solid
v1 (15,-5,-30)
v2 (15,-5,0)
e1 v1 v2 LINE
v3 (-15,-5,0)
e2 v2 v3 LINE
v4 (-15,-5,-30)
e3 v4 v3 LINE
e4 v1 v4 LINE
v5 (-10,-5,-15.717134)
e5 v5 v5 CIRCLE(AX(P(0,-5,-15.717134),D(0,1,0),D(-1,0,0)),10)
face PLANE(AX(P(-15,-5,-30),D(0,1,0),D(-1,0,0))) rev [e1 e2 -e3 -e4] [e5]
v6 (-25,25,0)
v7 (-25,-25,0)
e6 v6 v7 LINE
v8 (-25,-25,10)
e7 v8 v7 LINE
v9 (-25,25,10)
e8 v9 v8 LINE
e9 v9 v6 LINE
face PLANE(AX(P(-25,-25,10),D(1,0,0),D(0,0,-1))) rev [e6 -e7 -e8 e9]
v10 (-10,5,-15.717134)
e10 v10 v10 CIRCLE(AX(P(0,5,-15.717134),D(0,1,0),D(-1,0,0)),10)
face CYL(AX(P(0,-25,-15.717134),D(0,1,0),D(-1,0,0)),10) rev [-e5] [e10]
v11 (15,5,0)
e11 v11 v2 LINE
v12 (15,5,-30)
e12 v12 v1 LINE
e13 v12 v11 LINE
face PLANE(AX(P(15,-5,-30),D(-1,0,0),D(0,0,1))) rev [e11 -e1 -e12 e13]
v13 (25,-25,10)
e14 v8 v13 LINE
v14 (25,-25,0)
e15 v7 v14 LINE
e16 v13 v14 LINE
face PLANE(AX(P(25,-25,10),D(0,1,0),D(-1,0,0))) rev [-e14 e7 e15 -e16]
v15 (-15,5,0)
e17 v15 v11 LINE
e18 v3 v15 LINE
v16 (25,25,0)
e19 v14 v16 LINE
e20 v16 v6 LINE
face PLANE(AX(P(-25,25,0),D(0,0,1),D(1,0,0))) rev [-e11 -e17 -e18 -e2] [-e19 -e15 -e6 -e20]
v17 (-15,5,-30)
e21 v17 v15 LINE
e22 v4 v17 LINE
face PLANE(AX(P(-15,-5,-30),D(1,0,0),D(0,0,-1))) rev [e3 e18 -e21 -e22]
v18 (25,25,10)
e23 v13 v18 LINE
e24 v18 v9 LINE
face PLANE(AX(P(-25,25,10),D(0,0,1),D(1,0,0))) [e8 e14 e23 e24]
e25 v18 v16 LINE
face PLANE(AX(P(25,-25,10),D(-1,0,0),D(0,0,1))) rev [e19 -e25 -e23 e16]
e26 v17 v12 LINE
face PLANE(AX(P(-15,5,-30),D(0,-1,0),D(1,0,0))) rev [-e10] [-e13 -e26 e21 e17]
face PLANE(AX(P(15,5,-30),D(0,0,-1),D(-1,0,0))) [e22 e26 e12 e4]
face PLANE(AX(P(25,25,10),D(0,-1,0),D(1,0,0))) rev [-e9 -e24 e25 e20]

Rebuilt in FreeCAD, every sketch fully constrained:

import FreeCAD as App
import Part
import Sketcher
Q = App.Units.Quantity

doc = App.newDocument("Part")
body = doc.addObject("PartDesign::Body", "Body")

# Sketch on XY plane
sketch1 = body.newObject("Sketcher::SketchObject", "Sketch")
sketch1.AttachmentSupport = (doc.getObject("XY_Plane"), [""])
sketch1.MapMode = "FlatFace"
sketch1.addGeometry(Part.LineSegment(App.Vector(-25, 25, 0), App.Vector(-25, -25, 0)), False)
sketch1.addGeometry(Part.LineSegment(App.Vector(-25, -25, 0), App.Vector(25, -25, 0)), False)
sketch1.addGeometry(Part.LineSegment(App.Vector(25, -25, 0), App.Vector(25, 25, 0)), False)
sketch1.addGeometry(Part.LineSegment(App.Vector(25, 25, 0), App.Vector(-25, 25, 0)), False)
sketch1.addConstraint(Sketcher.Constraint("Coincident", 0, 2, 1, 1))
sketch1.addConstraint(Sketcher.Constraint("Coincident", 1, 2, 2, 1))
sketch1.addConstraint(Sketcher.Constraint("Coincident", 2, 2, 3, 1))
sketch1.addConstraint(Sketcher.Constraint("Coincident", 3, 2, 0, 1))
sketch1.addConstraint(Sketcher.Constraint("Vertical", 0))
sketch1.addConstraint(Sketcher.Constraint("Horizontal", 1))
sketch1.addConstraint(Sketcher.Constraint("Vertical", 2))
sketch1.addConstraint(Sketcher.Constraint("Horizontal", 3))
sketch1.addConstraint(Sketcher.Constraint("Symmetric", 0, 2, 2, 2, -1, 1))
sketch1.addConstraint(Sketcher.Constraint("Equal", 3, 0))
sketch1.addConstraint(Sketcher.Constraint("DistanceX", 1, 1, 1, 2, Q("50 mm")))
pad1 = body.newObject("PartDesign::Pad", "Pad")
pad1.Profile = sketch1
pad1.Length = 10

# Sketch on XY plane
sketch2 = body.newObject("Sketcher::SketchObject", "Sketch001")
sketch2.AttachmentSupport = (doc.getObject("XY_Plane"), [""])
sketch2.MapMode = "FlatFace"
sketch2.addGeometry(Part.LineSegment(App.Vector(15, 5, 0), App.Vector(15, -5, 0)), False)
sketch2.addGeometry(Part.LineSegment(App.Vector(15, -5, 0), App.Vector(-15, -5, 0)), False)
sketch2.addGeometry(Part.LineSegment(App.Vector(-15, -5, 0), App.Vector(-15, 5, 0)), False)
sketch2.addGeometry(Part.LineSegment(App.Vector(-15, 5, 0), App.Vector(15, 5, 0)), False)
sketch2.addConstraint(Sketcher.Constraint("Coincident", 0, 2, 1, 1))
sketch2.addConstraint(Sketcher.Constraint("Coincident", 1, 2, 2, 1))
sketch2.addConstraint(Sketcher.Constraint("Coincident", 2, 2, 3, 1))
sketch2.addConstraint(Sketcher.Constraint("Coincident", 3, 2, 0, 1))
sketch2.addConstraint(Sketcher.Constraint("Vertical", 0))
sketch2.addConstraint(Sketcher.Constraint("Horizontal", 1))
sketch2.addConstraint(Sketcher.Constraint("Vertical", 2))
sketch2.addConstraint(Sketcher.Constraint("Horizontal", 3))
sketch2.addConstraint(Sketcher.Constraint("Symmetric", 0, 2, 2, 2, -1, 1))
sketch2.addConstraint(Sketcher.Constraint("DistanceX", 1, 2, 1, 1, Q("30 mm")))
sketch2.addConstraint(Sketcher.Constraint("DistanceY", 0, 2, 0, 1, Q("10 mm")))
pad2 = body.newObject("PartDesign::Pad", "Pad001")
pad2.Profile = sketch2
pad2.Length = 30
pad2.Reversed = True

# Sketch on XZ plane
sketch3 = body.newObject("Sketcher::SketchObject", "Sketch002")
sketch3.AttachmentSupport = (doc.getObject("XZ_Plane"), [""])
sketch3.MapMode = "FlatFace"
sketch3.AttachmentOffset = App.Placement(App.Vector(0, 0, -5), App.Rotation())
sketch3.addGeometry(Part.Circle(App.Vector(0, -15.717134, 0), App.Vector(0, 0, 1), 10), False)
sketch3.addConstraint(Sketcher.Constraint("PointOnObject", 0, 3, -2))
sketch3.addConstraint(Sketcher.Constraint("Diameter", 0, Q("20 mm")))
sketch3.addConstraint(Sketcher.Constraint("DistanceY", 0, 3, -1, 1, Q("15.717134 mm")))
pocket1 = body.newObject("PartDesign::Pocket", "Pocket")
pocket1.Profile = sketch3
pocket1.Length = 30
pocket1.Reversed = True

doc.recompute()
